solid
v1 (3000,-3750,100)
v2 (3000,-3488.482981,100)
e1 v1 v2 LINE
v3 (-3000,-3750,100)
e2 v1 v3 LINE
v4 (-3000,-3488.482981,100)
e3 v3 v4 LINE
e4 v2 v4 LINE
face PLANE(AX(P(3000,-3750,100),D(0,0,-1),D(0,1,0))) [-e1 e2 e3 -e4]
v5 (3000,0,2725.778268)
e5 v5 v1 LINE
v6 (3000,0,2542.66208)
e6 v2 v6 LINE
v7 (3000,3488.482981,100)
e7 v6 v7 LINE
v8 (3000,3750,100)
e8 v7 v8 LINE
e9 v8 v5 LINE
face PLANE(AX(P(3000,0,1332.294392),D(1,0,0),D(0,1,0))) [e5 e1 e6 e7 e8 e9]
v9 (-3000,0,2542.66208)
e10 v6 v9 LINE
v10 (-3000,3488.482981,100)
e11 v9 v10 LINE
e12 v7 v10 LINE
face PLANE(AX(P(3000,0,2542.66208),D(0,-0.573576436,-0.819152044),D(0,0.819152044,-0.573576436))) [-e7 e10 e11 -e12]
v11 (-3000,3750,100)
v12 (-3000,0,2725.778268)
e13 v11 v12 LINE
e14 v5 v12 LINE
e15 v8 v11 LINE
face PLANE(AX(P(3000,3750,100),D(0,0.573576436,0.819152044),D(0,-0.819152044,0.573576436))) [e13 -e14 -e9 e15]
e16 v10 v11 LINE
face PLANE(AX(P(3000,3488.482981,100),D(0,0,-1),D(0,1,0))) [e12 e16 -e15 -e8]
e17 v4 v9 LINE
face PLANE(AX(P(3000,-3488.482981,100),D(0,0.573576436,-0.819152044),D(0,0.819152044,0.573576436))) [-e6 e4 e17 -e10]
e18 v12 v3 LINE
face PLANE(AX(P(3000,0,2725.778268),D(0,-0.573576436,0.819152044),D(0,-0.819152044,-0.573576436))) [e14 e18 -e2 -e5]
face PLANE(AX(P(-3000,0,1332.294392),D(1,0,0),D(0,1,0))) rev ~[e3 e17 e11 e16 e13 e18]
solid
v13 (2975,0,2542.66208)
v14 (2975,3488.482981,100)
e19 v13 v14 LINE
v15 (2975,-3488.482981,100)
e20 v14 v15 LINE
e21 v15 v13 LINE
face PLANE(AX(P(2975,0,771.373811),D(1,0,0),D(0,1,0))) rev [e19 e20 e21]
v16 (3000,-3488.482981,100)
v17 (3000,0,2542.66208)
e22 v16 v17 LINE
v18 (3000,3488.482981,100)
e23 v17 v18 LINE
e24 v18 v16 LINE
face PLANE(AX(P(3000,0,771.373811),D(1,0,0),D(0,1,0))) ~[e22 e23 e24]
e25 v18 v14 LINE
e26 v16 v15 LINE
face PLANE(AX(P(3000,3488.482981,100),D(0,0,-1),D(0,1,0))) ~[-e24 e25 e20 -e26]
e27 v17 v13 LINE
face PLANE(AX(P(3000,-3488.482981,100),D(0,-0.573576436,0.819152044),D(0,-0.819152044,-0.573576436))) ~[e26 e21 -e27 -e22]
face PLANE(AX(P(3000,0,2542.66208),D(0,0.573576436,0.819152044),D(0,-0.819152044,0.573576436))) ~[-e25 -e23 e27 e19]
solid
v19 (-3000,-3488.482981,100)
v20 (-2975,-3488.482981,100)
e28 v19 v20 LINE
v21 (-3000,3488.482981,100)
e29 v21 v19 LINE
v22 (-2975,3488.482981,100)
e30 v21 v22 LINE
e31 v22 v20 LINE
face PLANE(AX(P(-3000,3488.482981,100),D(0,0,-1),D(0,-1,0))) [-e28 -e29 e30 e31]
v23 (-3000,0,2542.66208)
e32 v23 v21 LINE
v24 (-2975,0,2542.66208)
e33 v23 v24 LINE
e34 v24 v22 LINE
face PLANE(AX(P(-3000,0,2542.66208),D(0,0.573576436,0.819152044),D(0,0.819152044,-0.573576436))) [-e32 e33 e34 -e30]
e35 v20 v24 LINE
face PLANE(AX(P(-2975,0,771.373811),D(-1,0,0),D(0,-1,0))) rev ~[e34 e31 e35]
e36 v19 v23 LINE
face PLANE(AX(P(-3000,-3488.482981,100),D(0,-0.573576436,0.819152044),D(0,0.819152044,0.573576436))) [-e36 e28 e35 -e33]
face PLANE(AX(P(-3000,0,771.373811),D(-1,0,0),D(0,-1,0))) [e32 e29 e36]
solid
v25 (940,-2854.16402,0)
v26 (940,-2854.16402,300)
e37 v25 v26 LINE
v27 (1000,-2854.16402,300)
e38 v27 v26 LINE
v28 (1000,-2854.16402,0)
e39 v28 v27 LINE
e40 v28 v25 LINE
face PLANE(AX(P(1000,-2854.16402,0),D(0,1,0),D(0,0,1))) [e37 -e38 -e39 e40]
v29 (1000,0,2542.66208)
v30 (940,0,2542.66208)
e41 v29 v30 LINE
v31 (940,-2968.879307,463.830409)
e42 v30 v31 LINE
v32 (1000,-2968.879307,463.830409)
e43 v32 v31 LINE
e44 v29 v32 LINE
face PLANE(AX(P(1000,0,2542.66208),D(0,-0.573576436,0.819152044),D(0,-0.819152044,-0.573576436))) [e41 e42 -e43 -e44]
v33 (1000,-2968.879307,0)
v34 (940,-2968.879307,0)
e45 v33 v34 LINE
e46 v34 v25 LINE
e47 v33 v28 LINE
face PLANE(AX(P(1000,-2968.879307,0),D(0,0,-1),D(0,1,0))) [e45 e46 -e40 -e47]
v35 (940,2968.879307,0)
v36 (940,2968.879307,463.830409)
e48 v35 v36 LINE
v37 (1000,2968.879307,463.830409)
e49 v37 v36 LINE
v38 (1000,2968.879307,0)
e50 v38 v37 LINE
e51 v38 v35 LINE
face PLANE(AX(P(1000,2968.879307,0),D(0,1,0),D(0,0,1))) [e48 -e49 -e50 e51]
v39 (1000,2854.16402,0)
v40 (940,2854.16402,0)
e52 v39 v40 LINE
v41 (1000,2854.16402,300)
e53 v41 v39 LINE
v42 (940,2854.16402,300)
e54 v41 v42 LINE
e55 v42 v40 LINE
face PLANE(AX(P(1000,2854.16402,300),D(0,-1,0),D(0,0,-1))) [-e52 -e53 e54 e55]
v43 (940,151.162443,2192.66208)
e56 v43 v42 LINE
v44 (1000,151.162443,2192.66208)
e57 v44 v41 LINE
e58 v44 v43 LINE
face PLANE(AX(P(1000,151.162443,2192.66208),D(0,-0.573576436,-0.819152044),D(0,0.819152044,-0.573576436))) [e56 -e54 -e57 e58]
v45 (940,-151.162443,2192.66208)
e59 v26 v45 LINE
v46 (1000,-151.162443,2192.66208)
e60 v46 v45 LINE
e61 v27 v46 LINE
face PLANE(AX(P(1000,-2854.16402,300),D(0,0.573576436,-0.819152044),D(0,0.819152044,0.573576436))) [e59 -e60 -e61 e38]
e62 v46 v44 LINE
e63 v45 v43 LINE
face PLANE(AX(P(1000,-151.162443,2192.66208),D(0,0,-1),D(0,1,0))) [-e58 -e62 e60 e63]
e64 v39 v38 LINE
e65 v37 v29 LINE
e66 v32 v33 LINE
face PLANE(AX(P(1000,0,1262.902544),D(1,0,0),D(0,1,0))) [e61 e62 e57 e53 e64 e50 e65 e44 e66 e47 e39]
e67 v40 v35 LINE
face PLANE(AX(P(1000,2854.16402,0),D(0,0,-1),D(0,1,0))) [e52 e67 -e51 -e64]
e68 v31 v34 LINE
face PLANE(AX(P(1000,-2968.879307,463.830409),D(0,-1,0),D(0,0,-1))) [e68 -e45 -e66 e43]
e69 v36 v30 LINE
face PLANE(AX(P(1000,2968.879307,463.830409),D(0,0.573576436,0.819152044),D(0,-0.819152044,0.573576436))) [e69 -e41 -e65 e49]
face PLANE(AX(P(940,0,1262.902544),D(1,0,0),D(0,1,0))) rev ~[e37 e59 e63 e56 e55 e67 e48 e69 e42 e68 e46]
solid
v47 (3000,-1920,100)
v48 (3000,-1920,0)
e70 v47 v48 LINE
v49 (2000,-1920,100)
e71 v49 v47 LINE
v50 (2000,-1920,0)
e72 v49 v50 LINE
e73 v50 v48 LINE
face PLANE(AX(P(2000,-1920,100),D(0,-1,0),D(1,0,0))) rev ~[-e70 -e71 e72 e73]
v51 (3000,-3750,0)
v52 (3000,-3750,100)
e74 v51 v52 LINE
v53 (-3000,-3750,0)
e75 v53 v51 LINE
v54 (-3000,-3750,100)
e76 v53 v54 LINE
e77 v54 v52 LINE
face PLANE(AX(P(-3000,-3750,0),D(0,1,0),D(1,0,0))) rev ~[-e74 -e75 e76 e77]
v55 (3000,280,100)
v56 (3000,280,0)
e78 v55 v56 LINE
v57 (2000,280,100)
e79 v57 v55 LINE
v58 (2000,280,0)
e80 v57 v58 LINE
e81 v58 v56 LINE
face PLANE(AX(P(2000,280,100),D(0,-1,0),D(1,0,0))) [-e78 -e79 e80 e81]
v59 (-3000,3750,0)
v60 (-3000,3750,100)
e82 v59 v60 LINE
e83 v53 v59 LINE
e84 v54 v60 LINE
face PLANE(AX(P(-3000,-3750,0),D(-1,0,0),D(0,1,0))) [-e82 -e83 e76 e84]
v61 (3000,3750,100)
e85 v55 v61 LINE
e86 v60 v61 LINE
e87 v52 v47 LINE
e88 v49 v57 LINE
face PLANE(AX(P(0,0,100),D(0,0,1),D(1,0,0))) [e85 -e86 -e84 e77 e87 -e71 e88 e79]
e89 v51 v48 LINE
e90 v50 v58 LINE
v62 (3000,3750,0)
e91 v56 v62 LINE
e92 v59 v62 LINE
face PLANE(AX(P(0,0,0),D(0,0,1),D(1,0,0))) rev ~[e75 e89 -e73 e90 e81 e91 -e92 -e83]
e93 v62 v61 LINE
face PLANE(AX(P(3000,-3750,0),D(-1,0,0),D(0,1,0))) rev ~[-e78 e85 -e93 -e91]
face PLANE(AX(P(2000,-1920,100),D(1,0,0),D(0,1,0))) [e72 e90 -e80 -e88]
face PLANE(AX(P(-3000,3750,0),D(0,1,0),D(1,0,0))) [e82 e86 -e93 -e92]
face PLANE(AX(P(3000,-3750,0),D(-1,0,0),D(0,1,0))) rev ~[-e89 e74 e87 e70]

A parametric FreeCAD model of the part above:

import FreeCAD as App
import Part
import Sketcher

V = App.Vector
Q = App.Units.Quantity

doc = App.newDocument("Part")
body = doc.addObject("PartDesign::Body", "Body")

# Sketch on XY plane
sketch1 = body.newObject("Sketcher::SketchObject", "Sketch")
sketch1.AttachmentSupport = (doc.getObject("XY_Plane"), [""])
sketch1.MapMode = "FlatFace"
sketch1.addGeometry(Part.LineSegment(V(-3000, 3750, 0), V(-3000, -3750, 0)), False)
sketch1.addGeometry(Part.LineSegment(V(-3000, -3750, 0), V(3000, -3750, 0)), False)
sketch1.addGeometry(Part.LineSegment(V(3000, -3750, 0), V(3000, 3750, 0)), False)
sketch1.addGeometry(Part.LineSegment(V(3000, 3750, 0), V(-3000, 3750, 0)), False)
sketch1.addConstraint(Sketcher.Constraint("Coincident", 0, 2, 1, 1))
sketch1.addConstraint(Sketcher.Constraint("Coincident", 1, 2, 2, 1))
sketch1.addConstraint(Sketcher.Constraint("Coincident", 2, 2, 3, 1))
sketch1.addConstraint(Sketcher.Constraint("Coincident", 3, 2, 0, 1))
sketch1.addConstraint(Sketcher.Constraint("Vertical", 0))
sketch1.addConstraint(Sketcher.Constraint("Horizontal", 1))
sketch1.addConstraint(Sketcher.Constraint("Vertical", 2))
sketch1.addConstraint(Sketcher.Constraint("Horizontal", 3))
sketch1.addConstraint(Sketcher.Constraint("Symmetric", 0, 2, 2, 2, -1, 1))
sketch1.addConstraint(Sketcher.Constraint("DistanceX", 1, 1, 1, 2, Q("6000 mm")))
sketch1.addConstraint(Sketcher.Constraint("DistanceY", 0, 2, 0, 1, Q("7500 mm")))
pad1 = body.newObject("PartDesign::Pad", "Pad")
pad1.Profile = sketch1
pad1.Length = 100

# Sketch on XY plane
sketch2 = body.newObject("Sketcher::SketchObject", "Sketch001")
sketch2.AttachmentSupport = (doc.getObject("XY_Plane"), [""])
sketch2.MapMode = "FlatFace"
sketch2.AttachmentOffset = App.Placement(V(0, 0, 100), App.Rotation())
sketch2.addGeometry(Part.LineSegment(V(2000, 280, 0), V(2000, -1920, 0)), False)
sketch2.addGeometry(Part.LineSegment(V(2000, -1920, 0), V(3000, -1920, 0)), False)
sketch2.addGeometry(Part.LineSegment(V(3000, -1920, 0), V(3000, 280, 0)), False)
sketch2.addGeometry(Part.LineSegment(V(3000, 280, 0), V(2000, 280, 0)), False)
sketch2.addConstraint(Sketcher.Constraint("Coincident", 0, 2, 1, 1))
sketch2.addConstraint(Sketcher.Constraint("Coincident", 1, 2, 2, 1))
sketch2.addConstraint(Sketcher.Constraint("Coincident", 2, 2, 3, 1))
sketch2.addConstraint(Sketcher.Constraint("Coincident", 3, 2, 0, 1))
sketch2.addConstraint(Sketcher.Constraint("Vertical", 0))
sketch2.addConstraint(Sketcher.Constraint("Horizontal", 1))
sketch2.addConstraint(Sketcher.Constraint("Vertical", 2))
sketch2.addConstraint(Sketcher.Constraint("Horizontal", 3))
sketch2.addConstraint(Sketcher.Constraint("DistanceX", 1, 1, 1, 2, Q("1000 mm")))
sketch2.addConstraint(Sketcher.Constraint("DistanceY", 0, 2, 0, 1, Q("2200 mm")))
sketch2.addConstraint(Sketcher.Constraint("DistanceX", -1, 1, 0, 2, Q("2000 mm")))
sketch2.addConstraint(Sketcher.Constraint("DistanceY", 0, 2, -1, 1, Q("1920 mm")))
pocket1 = body.newObject("PartDesign::Pocket", "Pocket")
pocket1.Profile = sketch2
pocket1.Type = "ThroughAll"
body2 = doc.addObject("PartDesign::Body", "Body001")

# Sketch on YZ plane
sketch3 = body2.newObject("Sketcher::SketchObject", "Sketch002")
sketch3.AttachmentSupport = (doc.getObject("YZ_Plane001"), [""])
sketch3.MapMode = "FlatFace"
sketch3.AttachmentOffset = App.Placement(V(0, 0, 3000), App.Rotation())
sketch3.addGeometry(Part.LineSegment(V(0, 2726, 0), V(-3750, 100, 0)), False)
sketch3.addGeometry(Part.LineSegment(V(-3750, 100, 0), V(-3488, 100, 0)), False)
sketch3.addGeometry(Part.LineSegment(V(-3488, 100, 0), V(0, 2543, 0)), False)
sketch3.addGeometry(Part.LineSegment(V(0, 2543, 0), V(3488, 100, 0)), False)
sketch3.addGeometry(Part.LineSegment(V(3488, 100, 0), V(3750, 100, 0)), False)
sketch3.addGeometry(Part.LineSegment(V(3750, 100, 0), V(0, 2726, 0)), False)
sketch3.addConstraint(Sketcher.Constraint("Coincident", 0, 2, 1, 1))
sketch3.addConstraint(Sketcher.Constraint("Coincident", 1, 2, 2, 1))
sketch3.addConstraint(Sketcher.Constraint("Coincident", 2, 2, 3, 1))
sketch3.addConstraint(Sketcher.Constraint("Coincident", 3, 2, 4, 1))
sketch3.addConstraint(Sketcher.Constraint("Coincident", 4, 2, 5, 1))
sketch3.addConstraint(Sketcher.Constraint("Coincident", 5, 2, 0, 1))
sketch3.addConstraint(Sketcher.Constraint("Horizontal", 1))
sketch3.addConstraint(Sketcher.Constraint("Horizontal", 4))
sketch3.addConstraint(Sketcher.Constraint("Symmetric", 1, 2, 3, 2, -2))
sketch3.addConstraint(Sketcher.Constraint("PointOnObject", 2, 2, -2))
sketch3.addConstraint(Sketcher.Constraint("PointOnObject", 5, 2, -2))
sketch3.addConstraint(Sketcher.Constraint("Parallel", 0, 2))
sketch3.addConstraint(Sketcher.Constraint("Parallel", 3, 5))
sketch3.addConstraint(Sketcher.Constraint("Angle", 0, Q("-145 deg")))
sketch3.addConstraint(Sketcher.Constraint("DistanceX", 0, 2, -1, 1, Q("3750 mm")))
sketch3.addConstraint(Sketcher.Constraint("DistanceY", -1, 1, 0, 2, Q("100 mm")))
sketch3.addConstraint(Sketcher.Constraint("DistanceX", 1, 1, 1, 2, Q("261.517019 mm")))
pad2 = body2.newObject("PartDesign::Pad", "Pad001")
pad2.Profile = sketch3
pad2.Length = 6000
pad2.Reversed = True
body3 = doc.addObject("PartDesign::Body", "Body002")

# Sketch on YZ plane
sketch4 = body3.newObject("Sketcher::SketchObject", "Sketch003")
sketch4.AttachmentSupport = (doc.getObject("YZ_Plane002"), [""])
sketch4.MapMode = "FlatFace"
sketch4.AttachmentOffset = App.Placement(V(0, 0, -3000), App.Rotation())
sketch4.addGeometry(Part.LineSegment(V(0, 2543, 0), V(3488, 100, 0)), False)
sketch4.addGeometry(Part.LineSegment(V(3488, 100, 0), V(-3488, 100, 0)), False)
sketch4.addGeometry(Part.LineSegment(V(-3488, 100, 0), V(0, 2543, 0)), False)
sketch4.addConstraint(Sketcher.Constraint("Coincident", 0, 2, 1, 1))
sketch4.addConstraint(Sketcher.Constraint("Coincident", 1, 2, 2, 1))
sketch4.addConstraint(Sketcher.Constraint("Coincident", 2, 2, 0, 1))
sketch4.addConstraint(Sketcher.Constraint("Horizontal", 1))
sketch4.addConstraint(Sketcher.Constraint("PointOnObject", 2, 2, -2))
sketch4.addConstraint(Sketcher.Constraint("Equal", 0, 2))
sketch4.addConstraint(Sketcher.Constraint("Angle", 0, Q("-35 deg")))
sketch4.addConstraint(Sketcher.Constraint("DistanceY", -1, 1, 0, 2, Q("100 mm")))
sketch4.addConstraint(Sketcher.Constraint("DistanceX", 1, 2, 1, 1, Q("6976.965962 mm")))
pad3 = body3.newObject("PartDesign::Pad", "Pad002")
pad3.Profile = sketch4
pad3.Length = 25
body4 = doc.addObject("PartDesign::Body", "Body003")
doc.recompute()

mirroring = doc.addObject("Part::Mirroring", "Mirroring")
mirroring.Source = body3
mirroring.Base = V(0, 0, 0)
mirroring.Normal = V(1, 0, 0)
body4.BaseFeature = mirroring
doc.recompute()
body5 = doc.addObject("PartDesign::Body", "Body004")

# Sketch on YZ plane
sketch5 = body5.newObject("Sketcher::SketchObject", "Sketch004")
sketch5.AttachmentSupport = (doc.getObject("YZ_Plane004"), [""])
sketch5.MapMode = "FlatFace"
sketch5.AttachmentOffset = App.Placement(V(0, 0, 1000), App.Rotation())
sketch5.addGeometry(Part.LineSegment(V(-2854, 300, 0), V(-151, 2193, 0)), False)
sketch5.addGeometry(Part.LineSegment(V(-151, 2193, 0), V(151, 2193, 0)), False)
sketch5.addGeometry(Part.LineSegment(V(151, 2193, 0), V(2854, 300, 0)), False)
sketch5.addGeometry(Part.LineSegment(V(2854, 300, 0), V(2854, 0, 0)), False)
sketch5.addGeometry(Part.LineSegment(V(2854, 0, 0), V(2969, 0, 0)), False)
sketch5.addGeometry(Part.LineSegment(V(2969, 0, 0), V(2969, 464, 0)), False)
sketch5.addGeometry(Part.LineSegment(V(2969, 464, 0), V(0, 2543, 0)), False)
sketch5.addGeometry(Part.LineSegment(V(0, 2543, 0), V(-2969, 464, 0)), False)
sketch5.addGeometry(Part.LineSegment(V(-2969, 464, 0), V(-2969, 0, 0)), False)
sketch5.addGeometry(Part.LineSegment(V(-2969, 0, 0), V(-2854, 0, 0)), False)
sketch5.addGeometry(Part.LineSegment(V(-2854, 0, 0), V(-2854, 300, 0)), False)
sketch5.addConstraint(Sketcher.Constraint("Coincident", 0, 2, 1, 1))
sketch5.addConstraint(Sketcher.Constraint("Coincident", 1, 2, 2, 1))
sketch5.addConstraint(Sketcher.Constraint("Coincident", 2, 2, 3, 1))
sketch5.addConstraint(Sketcher.Constraint("Coincident", 3, 2, 4, 1))
sketch5.addConstraint(Sketcher.Constraint("Coincident", 4, 2, 5, 1))
sketch5.addConstraint(Sketcher.Constraint("Coincident", 5, 2, 6, 1))
sketch5.addConstraint(Sketcher.Constraint("Coincident", 6, 2, 7, 1))
sketch5.addConstraint(Sketcher.Constraint("Coincident", 7, 2, 8, 1))
sketch5.addConstraint(Sketcher.Constraint("Coincident", 8, 2, 9, 1))
sketch5.addConstraint(Sketcher.Constraint("Coincident", 9, 2, 10, 1))
sketch5.addConstraint(Sketcher.Constraint("Coincident", 10, 2, 0, 1))
sketch5.addConstraint(Sketcher.Constraint("Horizontal", 1))
sketch5.addConstraint(Sketcher.Constraint("Vertical", 3))
sketch5.addConstraint(Sketcher.Constraint("Horizontal", 4))
sketch5.addConstraint(Sketcher.Constraint("Vertical", 5))
sketch5.addConstraint(Sketcher.Constraint("Vertical", 8))
sketch5.addConstraint(Sketcher.Constraint("Horizontal", 9))
sketch5.addConstraint(Sketcher.Constraint("Vertical", 10))
sketch5.addConstraint(Sketcher.Constraint("Symmetric", 4, 2, 8, 2, -1, 1))
sketch5.addConstraint(Sketcher.Constraint("Symmetric", 3, 2, 9, 2, -2))
sketch5.addConstraint(Sketcher.Constraint("PointOnObject", 6, 2, -2))
sketch5.addConstraint(Sketcher.Constraint("Parallel", 2, 6))
sketch5.addConstraint(Sketcher.Constraint("Parallel", 0, 7))
sketch5.addConstraint(Sketcher.Constraint("Horizontal", 5, 2, 7, 2))
sketch5.addConstraint(Sketcher.Constraint("Horizontal", 2, 2, 10, 2))
sketch5.addConstraint(Sketcher.Constraint("DistanceY", 3, 2, 3, 1, Q("300 mm")))
sketch5.addConstraint(Sketcher.Constraint("Angle", 0, Q("35 deg")))
sketch5.addConstraint(Sketcher.Constraint("DistanceY", 0, 2, 6, 2, Q("350 mm")))
sketch5.addConstraint(Sketcher.Constraint("DistanceY", 5, 1, 5, 2, Q("463.830409 mm")))
sketch5.addConstraint(Sketcher.Constraint("Distance", 0, Q("3299.755639 mm")))
sketch5.addConstraint(Sketcher.Constraint("DistanceX", 1, 1, 1, 2, Q("302.324886 mm")))
pad4 = body5.newObject("PartDesign::Pad", "Pad003")
pad4.Profile = sketch5
pad4.Length = 60
pad4.Reversed = True
mirroring.Visibility = False

doc.recompute()
